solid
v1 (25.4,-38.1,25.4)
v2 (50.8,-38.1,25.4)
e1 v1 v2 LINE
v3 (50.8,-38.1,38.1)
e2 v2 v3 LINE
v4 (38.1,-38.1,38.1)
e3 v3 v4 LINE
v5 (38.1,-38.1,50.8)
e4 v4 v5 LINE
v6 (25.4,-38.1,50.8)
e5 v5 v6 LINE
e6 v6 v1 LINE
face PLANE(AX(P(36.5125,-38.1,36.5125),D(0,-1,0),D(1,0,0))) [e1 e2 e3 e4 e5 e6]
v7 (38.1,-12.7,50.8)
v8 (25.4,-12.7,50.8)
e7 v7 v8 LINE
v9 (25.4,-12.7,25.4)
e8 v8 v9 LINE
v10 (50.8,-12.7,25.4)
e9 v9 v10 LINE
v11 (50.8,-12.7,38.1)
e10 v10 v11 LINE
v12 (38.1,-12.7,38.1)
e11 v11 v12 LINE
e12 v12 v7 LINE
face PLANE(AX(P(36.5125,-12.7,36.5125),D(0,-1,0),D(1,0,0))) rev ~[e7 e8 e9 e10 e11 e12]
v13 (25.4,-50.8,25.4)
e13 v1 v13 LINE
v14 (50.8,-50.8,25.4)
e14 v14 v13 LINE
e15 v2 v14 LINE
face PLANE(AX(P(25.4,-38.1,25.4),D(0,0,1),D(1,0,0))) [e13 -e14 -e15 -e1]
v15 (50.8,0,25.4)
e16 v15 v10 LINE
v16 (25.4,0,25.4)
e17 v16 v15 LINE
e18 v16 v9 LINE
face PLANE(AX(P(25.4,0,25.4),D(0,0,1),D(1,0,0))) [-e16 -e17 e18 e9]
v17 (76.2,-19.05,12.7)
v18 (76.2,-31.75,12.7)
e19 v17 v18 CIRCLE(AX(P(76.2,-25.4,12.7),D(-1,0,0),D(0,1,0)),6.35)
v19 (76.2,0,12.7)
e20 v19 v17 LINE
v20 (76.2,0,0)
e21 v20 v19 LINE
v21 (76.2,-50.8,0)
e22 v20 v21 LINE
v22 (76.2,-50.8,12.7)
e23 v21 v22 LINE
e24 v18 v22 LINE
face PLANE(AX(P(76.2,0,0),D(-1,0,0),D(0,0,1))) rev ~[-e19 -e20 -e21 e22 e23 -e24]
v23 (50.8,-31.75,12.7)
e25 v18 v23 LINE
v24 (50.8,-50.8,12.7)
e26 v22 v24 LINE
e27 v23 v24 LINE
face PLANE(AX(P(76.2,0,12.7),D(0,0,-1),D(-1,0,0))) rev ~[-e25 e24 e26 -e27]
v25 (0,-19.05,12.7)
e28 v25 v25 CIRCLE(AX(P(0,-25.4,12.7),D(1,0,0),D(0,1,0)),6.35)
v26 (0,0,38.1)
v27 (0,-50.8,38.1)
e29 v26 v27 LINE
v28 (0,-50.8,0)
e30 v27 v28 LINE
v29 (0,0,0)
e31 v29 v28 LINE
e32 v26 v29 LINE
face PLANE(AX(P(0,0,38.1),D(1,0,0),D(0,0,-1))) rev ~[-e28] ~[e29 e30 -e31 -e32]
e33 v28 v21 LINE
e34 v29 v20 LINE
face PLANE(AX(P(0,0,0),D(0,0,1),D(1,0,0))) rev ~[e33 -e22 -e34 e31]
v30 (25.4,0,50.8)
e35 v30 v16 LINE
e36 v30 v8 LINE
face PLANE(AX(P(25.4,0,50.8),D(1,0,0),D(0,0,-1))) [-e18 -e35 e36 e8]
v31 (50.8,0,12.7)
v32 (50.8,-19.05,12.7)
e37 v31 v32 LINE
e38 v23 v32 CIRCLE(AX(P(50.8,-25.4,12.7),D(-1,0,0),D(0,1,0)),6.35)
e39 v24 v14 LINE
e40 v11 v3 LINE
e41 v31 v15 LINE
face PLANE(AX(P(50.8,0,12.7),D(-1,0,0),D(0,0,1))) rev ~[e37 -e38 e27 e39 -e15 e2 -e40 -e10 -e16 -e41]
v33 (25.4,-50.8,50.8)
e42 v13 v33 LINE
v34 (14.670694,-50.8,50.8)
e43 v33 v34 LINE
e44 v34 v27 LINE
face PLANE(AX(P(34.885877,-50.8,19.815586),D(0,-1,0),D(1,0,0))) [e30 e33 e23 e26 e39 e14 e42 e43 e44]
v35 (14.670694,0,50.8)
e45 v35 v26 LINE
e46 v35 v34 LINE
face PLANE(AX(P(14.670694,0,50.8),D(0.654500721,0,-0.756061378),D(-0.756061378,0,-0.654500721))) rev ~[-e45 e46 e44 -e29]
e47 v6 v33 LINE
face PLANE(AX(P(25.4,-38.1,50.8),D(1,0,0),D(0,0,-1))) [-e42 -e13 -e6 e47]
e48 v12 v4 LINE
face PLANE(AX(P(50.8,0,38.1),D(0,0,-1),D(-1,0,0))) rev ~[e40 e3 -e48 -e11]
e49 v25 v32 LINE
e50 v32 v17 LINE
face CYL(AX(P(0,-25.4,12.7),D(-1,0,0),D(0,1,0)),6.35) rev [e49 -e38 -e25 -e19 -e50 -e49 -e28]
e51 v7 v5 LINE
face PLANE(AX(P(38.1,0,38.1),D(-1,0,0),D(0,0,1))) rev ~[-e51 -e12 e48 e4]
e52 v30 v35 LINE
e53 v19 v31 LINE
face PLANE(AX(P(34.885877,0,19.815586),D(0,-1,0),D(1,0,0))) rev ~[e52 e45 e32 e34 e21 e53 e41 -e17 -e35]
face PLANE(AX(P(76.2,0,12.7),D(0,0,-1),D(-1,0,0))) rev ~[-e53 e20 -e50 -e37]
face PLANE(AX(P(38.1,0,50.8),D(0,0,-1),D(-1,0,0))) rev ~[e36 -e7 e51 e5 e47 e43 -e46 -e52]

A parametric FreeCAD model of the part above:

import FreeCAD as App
import Part
import Sketcher
Q = App.Units.Quantity


def add_polygon(sketch, points):
    """Adds a closed chain of lines whose ends are joined by coincident constraints."""
    first, n = sketch.GeometryCount, len(points)
    for a, b in zip(points, points[1:] + points[:1]):
        sketch.addGeometry(Part.LineSegment(App.Vector(*a, 0), App.Vector(*b, 0)), False)
    for i in range(n):
        sketch.addConstraint(Sketcher.Constraint("Coincident", first + i, 2, first + (i + 1) % n, 1))

doc = App.newDocument("Part")
body = doc.addObject("PartDesign::Body", "Body")

sketch1 = doc.addObject("Sketcher::SketchObject", "Sketch")
body.addObject(sketch1)
sketch1.AttachmentSupport = (doc.XZ_Plane, [""])
sketch1.MapMode = "FlatFace"
add_polygon(sketch1, [(0, 38), (0, 0), (76, 0), (76, 13), (51, 13), (51, 38), (38, 38), (38, 51), (15, 51)])
sketch1.addConstraint([
    Sketcher.Constraint("Vertical", 0),
    Sketcher.Constraint("Horizontal", 1),
    Sketcher.Constraint("Vertical", 2),
    Sketcher.Constraint("Horizontal", 3),
    Sketcher.Constraint("Vertical", 4),
    Sketcher.Constraint("Horizontal", 5),
    Sketcher.Constraint("Vertical", 6),
    Sketcher.Constraint("Horizontal", 7),
    Sketcher.Constraint("Coincident", 0, 2, -1, 1),
    Sketcher.Constraint("Horizontal", 5, 2, 8, 2),
    Sketcher.Constraint("Equal", 5, 2),
    Sketcher.Constraint("Equal", 3, 4),
    Sketcher.Constraint("Equal", 2, 6),
    Sketcher.Constraint("DistanceX", 1, 1, 1, 2, Q("3 in")),
    Sketcher.Constraint("DistanceX", 3, 2, 3, 1, Q("1 in")),
    Sketcher.Constraint("DistanceX", 5, 2, 5, 1, Q("0.5 in")),
    Sketcher.Constraint("DistanceX", 7, 2, 7, 1, 23.429306),
])
pad1 = doc.addObject("PartDesign::Pad", "Pad")
body.addObject(pad1)
pad1.Profile = sketch1
pad1.Length = Q("2 in")

sketch2 = doc.addObject("Sketcher::SketchObject", "Sketch001")
body.addObject(sketch2)
sketch2.AttachmentSupport = (doc.XZ_Plane, [""])
sketch2.MapMode = "FlatFace"
add_polygon(sketch2, [(38, 51), (25, 51), (25, 25), (51, 25), (51, 38), (38, 38)])
sketch2.addConstraint([
    Sketcher.Constraint("Horizontal", 0),
    Sketcher.Constraint("Vertical", 1),
    Sketcher.Constraint("Horizontal", 2),
    Sketcher.Constraint("Vertical", 3),
    Sketcher.Constraint("Horizontal", 4),
    Sketcher.Constraint("Vertical", 5),
    Sketcher.Constraint("Equal", 0, 4),
    Sketcher.Constraint("Equal", 2, 1),
    Sketcher.Constraint("Equal", 4, 3),
    Sketcher.Constraint("DistanceX", 2, 1, 2, 2, Q("1 in")),
    Sketcher.Constraint("DistanceX", -1, 1, 0, 2, Q("1 in")),
    Sketcher.Constraint("DistanceY", -1, 1, 0, 2, Q("2 in")),
])
pocket1 = doc.addObject("PartDesign::Pocket", "Pocket")
body.addObject(pocket1)
pocket1.Profile = sketch2
pocket1.Length = Q("0.5 in")
pocket1.Reversed = True

sketch3 = doc.addObject("Sketcher::SketchObject", "Sketch002")
body.addObject(sketch3)
sketch3.AttachmentSupport = (doc.XZ_Plane, [""])
sketch3.MapMode = "FlatFace"
sketch3.AttachmentOffset = App.Placement(App.Vector(0, 0, 1.5 * 25.4), App.Rotation())
add_polygon(sketch3, [(38, 51), (25, 51), (25, 25), (51, 25), (51, 38), (38, 38)])
sketch3.addConstraint([
    Sketcher.Constraint("Horizontal", 0),
    Sketcher.Constraint("Vertical", 1),
    Sketcher.Constraint("Horizontal", 2),
    Sketcher.Constraint("Vertical", 3),
    Sketcher.Constraint("Horizontal", 4),
    Sketcher.Constraint("Vertical", 5),
    Sketcher.Constraint("Equal", 0, 4),
    Sketcher.Constraint("Equal", 2, 1),
    Sketcher.Constraint("Equal", 4, 3),
    Sketcher.Constraint("DistanceX", 2, 1, 2, 2, Q("1 in")),
    Sketcher.Constraint("DistanceX", -1, 1, 0, 2, Q("1 in")),
    Sketcher.Constraint("DistanceY", -1, 1, 0, 2, Q("2 in")),
])
pocket2 = doc.addObject("PartDesign::Pocket", "Pocket001")
body.addObject(pocket2)
pocket2.Profile = sketch3
pocket2.Length = 12.701
pocket2.Reversed = True

sketch4 = doc.addObject("Sketcher::SketchObject", "Sketch003")
body.addObject(sketch4)
sketch4.AttachmentSupport = (doc.YZ_Plane, [""])
sketch4.MapMode = "FlatFace"
sketch4.addGeometry(Part.Circle(App.Vector(-25, 13, 0), App.Vector(0, 0, 1), 6), False)
sketch4.addConstraint([
    Sketcher.Constraint("Diameter", 0, Q("0.5 in")),
    Sketcher.Constraint("DistanceX", 0, 3, -1, 1, Q("1 in")),
    Sketcher.Constraint("DistanceY", -1, 1, 0, 3, Q("0.5 in")),
])
pocket3 = doc.addObject("PartDesign::Pocket", "Pocket002")
body.addObject(pocket3)
pocket3.Profile = sketch4
pocket3.Type = "ThroughAll"
pocket3.Reversed = True

doc.recompute()
